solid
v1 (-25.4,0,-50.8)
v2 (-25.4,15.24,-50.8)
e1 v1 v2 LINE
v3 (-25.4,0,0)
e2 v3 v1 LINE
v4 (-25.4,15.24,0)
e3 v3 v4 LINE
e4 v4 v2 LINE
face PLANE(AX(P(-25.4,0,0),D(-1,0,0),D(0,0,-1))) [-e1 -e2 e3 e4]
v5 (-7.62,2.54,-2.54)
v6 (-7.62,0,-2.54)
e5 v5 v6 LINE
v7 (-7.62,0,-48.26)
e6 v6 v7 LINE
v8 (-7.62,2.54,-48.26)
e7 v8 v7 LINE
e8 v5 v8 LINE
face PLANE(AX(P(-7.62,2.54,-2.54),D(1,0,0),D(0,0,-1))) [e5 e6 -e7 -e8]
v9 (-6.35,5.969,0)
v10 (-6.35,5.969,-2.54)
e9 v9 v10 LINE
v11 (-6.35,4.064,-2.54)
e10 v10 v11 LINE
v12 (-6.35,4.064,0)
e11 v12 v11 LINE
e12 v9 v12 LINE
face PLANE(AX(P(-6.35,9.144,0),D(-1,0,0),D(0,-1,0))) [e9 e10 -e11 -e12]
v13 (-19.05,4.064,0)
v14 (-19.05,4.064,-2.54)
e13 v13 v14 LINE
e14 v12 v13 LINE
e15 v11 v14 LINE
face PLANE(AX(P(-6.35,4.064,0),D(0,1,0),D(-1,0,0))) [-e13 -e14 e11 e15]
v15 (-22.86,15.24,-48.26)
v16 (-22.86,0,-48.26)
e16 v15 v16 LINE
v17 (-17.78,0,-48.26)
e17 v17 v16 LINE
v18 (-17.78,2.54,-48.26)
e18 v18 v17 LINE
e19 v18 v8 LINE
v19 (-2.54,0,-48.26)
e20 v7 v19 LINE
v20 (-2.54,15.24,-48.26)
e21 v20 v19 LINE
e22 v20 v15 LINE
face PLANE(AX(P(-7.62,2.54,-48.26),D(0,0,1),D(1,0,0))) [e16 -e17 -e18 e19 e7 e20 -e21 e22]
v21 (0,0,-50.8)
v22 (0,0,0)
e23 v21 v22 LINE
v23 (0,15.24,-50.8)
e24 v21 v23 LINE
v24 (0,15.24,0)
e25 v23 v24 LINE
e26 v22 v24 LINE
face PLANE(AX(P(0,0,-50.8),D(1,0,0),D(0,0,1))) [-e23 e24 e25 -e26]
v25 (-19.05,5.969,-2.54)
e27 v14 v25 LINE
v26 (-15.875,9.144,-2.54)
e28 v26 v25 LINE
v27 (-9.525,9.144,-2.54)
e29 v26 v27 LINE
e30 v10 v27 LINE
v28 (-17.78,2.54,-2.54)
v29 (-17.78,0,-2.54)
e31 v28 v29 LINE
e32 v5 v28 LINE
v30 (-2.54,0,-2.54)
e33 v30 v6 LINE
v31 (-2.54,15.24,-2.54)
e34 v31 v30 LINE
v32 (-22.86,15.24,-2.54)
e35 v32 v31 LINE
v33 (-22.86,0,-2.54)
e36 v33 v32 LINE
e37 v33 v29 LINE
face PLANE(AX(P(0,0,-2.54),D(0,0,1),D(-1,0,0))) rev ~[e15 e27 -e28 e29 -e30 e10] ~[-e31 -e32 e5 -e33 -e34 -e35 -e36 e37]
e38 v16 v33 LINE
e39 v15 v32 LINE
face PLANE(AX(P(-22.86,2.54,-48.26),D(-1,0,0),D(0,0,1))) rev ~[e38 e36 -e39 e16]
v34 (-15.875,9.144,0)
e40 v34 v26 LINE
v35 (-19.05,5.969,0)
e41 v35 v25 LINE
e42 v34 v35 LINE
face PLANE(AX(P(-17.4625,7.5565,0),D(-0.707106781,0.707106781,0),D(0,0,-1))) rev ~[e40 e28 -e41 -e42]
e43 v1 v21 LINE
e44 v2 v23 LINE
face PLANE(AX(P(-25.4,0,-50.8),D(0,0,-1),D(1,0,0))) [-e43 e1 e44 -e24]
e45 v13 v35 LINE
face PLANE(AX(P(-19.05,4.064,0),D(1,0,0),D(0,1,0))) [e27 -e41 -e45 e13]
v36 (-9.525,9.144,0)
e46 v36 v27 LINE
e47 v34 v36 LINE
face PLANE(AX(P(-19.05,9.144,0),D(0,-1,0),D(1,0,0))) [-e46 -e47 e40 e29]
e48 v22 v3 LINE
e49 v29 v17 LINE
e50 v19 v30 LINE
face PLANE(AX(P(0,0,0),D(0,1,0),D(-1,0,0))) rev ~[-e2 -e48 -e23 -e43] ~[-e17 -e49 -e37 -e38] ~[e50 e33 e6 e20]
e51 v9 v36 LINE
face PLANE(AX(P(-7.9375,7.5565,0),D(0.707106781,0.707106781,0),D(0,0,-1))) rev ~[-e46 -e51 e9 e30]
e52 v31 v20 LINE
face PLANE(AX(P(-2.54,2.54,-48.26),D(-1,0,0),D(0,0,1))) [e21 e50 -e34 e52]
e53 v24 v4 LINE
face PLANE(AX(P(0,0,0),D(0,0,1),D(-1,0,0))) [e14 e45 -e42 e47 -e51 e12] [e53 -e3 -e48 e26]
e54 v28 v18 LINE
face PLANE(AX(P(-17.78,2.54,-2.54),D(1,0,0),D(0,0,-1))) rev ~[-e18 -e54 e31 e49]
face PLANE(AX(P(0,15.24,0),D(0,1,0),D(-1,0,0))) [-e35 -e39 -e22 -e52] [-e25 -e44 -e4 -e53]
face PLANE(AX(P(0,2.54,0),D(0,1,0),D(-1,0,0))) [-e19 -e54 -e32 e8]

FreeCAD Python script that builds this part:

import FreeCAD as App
import Part
import Sketcher

V = App.Vector
Q = App.Units.Quantity


def edges_at(feature, points):
    """Names of the edges that pass closest to the given points."""
    edges = feature.Shape.Edges
    near = lambda p: min(range(len(edges)), key=lambda i: edges[i].distToShape(Part.Vertex(*p))[0])
    return sorted({f"Edge{near(p) + 1}" for p in points})


def faces_at(feature, points):
    """Names of the faces that lie closest to the given points."""
    faces = feature.Shape.Faces
    near = lambda p: min(range(len(faces)), key=lambda i: faces[i].distToShape(Part.Vertex(*p))[0])
    return sorted({f"Face{near(p) + 1}" for p in points})

doc = App.newDocument("Part")
body = doc.addObject("PartDesign::Body", "Body")

# Sketch on XZ plane
sketch1 = doc.addObject("Sketcher::SketchObject", "Sketch")
body.addObject(sketch1)
sketch1.AttachmentSupport = (doc.XZ_Plane, [""])
sketch1.MapMode = "FlatFace"
sketch1.addGeometry(Part.LineSegment(V(-25.4, 0, 0), V(0, 0, 0)), False)
sketch1.addGeometry(Part.LineSegment(V(0, 0, 0), V(0, -50.8, 0)), False)
sketch1.addGeometry(Part.LineSegment(V(0, -50.8, 0), V(-25.4, -50.8, 0)), False)
sketch1.addGeometry(Part.LineSegment(V(-25.4, -50.8, 0), V(-25.4, 0, 0)), False)
sketch1.addConstraint(Sketcher.Constraint("Coincident", 0, 2, 1, 1))
sketch1.addConstraint(Sketcher.Constraint("Coincident", 1, 2, 2, 1))
sketch1.addConstraint(Sketcher.Constraint("Coincident", 2, 2, 3, 1))
sketch1.addConstraint(Sketcher.Constraint("Coincident", 3, 2, 0, 1))
sketch1.addConstraint(Sketcher.Constraint("Horizontal", 0))
sketch1.addConstraint(Sketcher.Constraint("Vertical", 1))
sketch1.addConstraint(Sketcher.Constraint("Horizontal", 2))
sketch1.addConstraint(Sketcher.Constraint("Vertical", 3))
sketch1.addConstraint(Sketcher.Constraint("Coincident", 0, 2, -1, 1))
sketch1.addConstraint(Sketcher.Constraint("DistanceX", 0, 1, 0, 2, Q("1 in")))
sketch1.addConstraint(Sketcher.Constraint("DistanceY", 1, 2, 1, 1, Q("2 in")))
pad1 = doc.addObject("PartDesign::Pad", "Pad")
body.addObject(pad1)
pad1.Profile = sketch1
pad1.Length = Q("0.6 in")
pad1.Reversed = True
doc.recompute()

thickness = doc.addObject("PartDesign::Thickness", "Thickness")
body.addObject(thickness)
thickness.Base = (pad1, faces_at(pad1, [(-8.467, 15.24, -33.867)]))
thickness.Value = Q("0.1 in")
thickness.Reversed = True
thickness.Join = "Intersection"

# Sketch on XY plane
sketch2 = doc.addObject("Sketcher::SketchObject", "Sketch001")
body.addObject(sketch2)
sketch2.AttachmentSupport = (doc.XY_Plane, [""])
sketch2.MapMode = "FlatFace"
sketch2.addGeometry(Part.LineSegment(V(-19.05, 4.064, 0), V(-6.35, 4.064, 0)), False)
sketch2.addGeometry(Part.LineSegment(V(-6.35, 4.064, 0), V(-6.35, 9.144, 0)), False)
sketch2.addGeometry(Part.LineSegment(V(-6.35, 9.144, 0), V(-19.05, 9.144, 0)), False)
sketch2.addGeometry(Part.LineSegment(V(-19.05, 9.144, 0), V(-19.05, 4.064, 0)), False)
sketch2.addConstraint(Sketcher.Constraint("Coincident", 0, 2, 1, 1))
sketch2.addConstraint(Sketcher.Constraint("Coincident", 1, 2, 2, 1))
sketch2.addConstraint(Sketcher.Constraint("Coincident", 2, 2, 3, 1))
sketch2.addConstraint(Sketcher.Constraint("Coincident", 3, 2, 0, 1))
sketch2.addConstraint(Sketcher.Constraint("Horizontal", 0))
sketch2.addConstraint(Sketcher.Constraint("Vertical", 1))
sketch2.addConstraint(Sketcher.Constraint("Horizontal", 2))
sketch2.addConstraint(Sketcher.Constraint("Vertical", 3))
sketch2.addConstraint(Sketcher.Constraint("DistanceX", 0, 1, 0, 2, Q("0.5 in")))
sketch2.addConstraint(Sketcher.Constraint("DistanceY", 1, 1, 1, 2, Q("0.2 in")))
sketch2.addConstraint(Sketcher.Constraint("DistanceX", 0, 2, -1, 1, Q("0.25 in")))
sketch2.addConstraint(Sketcher.Constraint("DistanceY", -1, 1, 0, 2, Q("0.16 in")))
pocket1 = doc.addObject("PartDesign::Pocket", "Pocket")
body.addObject(pocket1)
pocket1.Profile = sketch2
pocket1.Length = Q("0.1 in")
doc.recompute()

chamfer = doc.addObject("PartDesign::Chamfer", "Chamfer")
body.addObject(chamfer)
chamfer.Base = (pocket1, edges_at(pocket1, [(-19.05, 9.144, -1.27), (-6.35, 9.144, -1.27)]))
chamfer.Size = Q("0.125 in")

# Sketch on XZ plane
sketch3 = doc.addObject("Sketcher::SketchObject", "Sketch002")
body.addObject(sketch3)
sketch3.AttachmentSupport = (doc.XZ_Plane, [""])
sketch3.MapMode = "FlatFace"
sketch3.AttachmentOffset = App.Placement(V(0, 0, -0.1 * 25.4), App.Rotation())
sketch3.addGeometry(Part.LineSegment(V(-22.86, -48.26, 0), V(-22.86, -2.54, 0)), False)
sketch3.addGeometry(Part.LineSegment(V(-22.86, -2.54, 0), V(-17.78, -2.54, 0)), False)
sketch3.addGeometry(Part.LineSegment(V(-17.78, -2.54, 0), V(-17.78, -48.26, 0)), False)
sketch3.addGeometry(Part.LineSegment(V(-17.78, -48.26, 0), V(-22.86, -48.26, 0)), False)
sketch3.addGeometry(Part.LineSegment(V(-2.54, -48.26, 0), V(-7.62, -48.26, 0)), False)
sketch3.addGeometry(Part.LineSegment(V(-7.62, -48.26, 0), V(-7.62, -2.54, 0)), False)
sketch3.addGeometry(Part.LineSegment(V(-7.62, -2.54, 0), V(-2.54, -2.54, 0)), False)
sketch3.addGeometry(Part.LineSegment(V(-2.54, -2.54, 0), V(-2.54, -48.26, 0)), False)
sketch3.addConstraint(Sketcher.Constraint("Coincident", 0, 2, 1, 1))
sketch3.addConstraint(Sketcher.Constraint("Coincident", 1, 2, 2, 1))
sketch3.addConstraint(Sketcher.Constraint("Coincident", 2, 2, 3, 1))
sketch3.addConstraint(Sketcher.Constraint("Coincident", 3, 2, 0, 1))
sketch3.addConstraint(Sketcher.Constraint("Coincident", 4, 2, 5, 1))
sketch3.addConstraint(Sketcher.Constraint("Coincident", 5, 2, 6, 1))
sketch3.addConstraint(Sketcher.Constraint("Coincident", 6, 2, 7, 1))
sketch3.addConstraint(Sketcher.Constraint("Coincident", 7, 2, 4, 1))
sketch3.addConstraint(Sketcher.Constraint("Vertical", 0))
sketch3.addConstraint(Sketcher.Constraint("Horizontal", 1))
sketch3.addConstraint(Sketcher.Constraint("Vertical", 2))
sketch3.addConstraint(Sketcher.Constraint("Horizontal", 3))
sketch3.addConstraint(Sketcher.Constraint("Horizontal", 4))
sketch3.addConstraint(Sketcher.Constraint("Vertical", 5))
sketch3.addConstraint(Sketcher.Constraint("Horizontal", 6))
sketch3.addConstraint(Sketcher.Constraint("Vertical", 7))
sketch3.addConstraint(Sketcher.Constraint("Horizontal", 3, 2, 4, 2))
sketch3.addConstraint(Sketcher.Constraint("Horizontal", 1, 2, 5, 2))
sketch3.addConstraint(Sketcher.Constraint("Equal", 3, 4))
sketch3.addConstraint(Sketcher.Constraint("DistanceX", 1, 1, 1, 2, Q("0.2 in")))
sketch3.addConstraint(Sketcher.Constraint("DistanceY", 0, 1, 0, 2, Q("1.8 in")))
sketch3.addConstraint(Sketcher.Constraint("DistanceX", 0, 2, -1, 1, Q("0.9 in")))
sketch3.addConstraint(Sketcher.Constraint("DistanceY", 0, 2, -1, 1, Q("0.1 in")))
sketch3.addConstraint(Sketcher.Constraint("DistanceX", 4, 2, -1, 1, Q("0.3 in")))
pocket2 = doc.addObject("PartDesign::Pocket", "Pocket001")
body.addObject(pocket2)
pocket2.Profile = sketch3
pocket2.Length = Q("0.1 in")
pocket2.Reversed = True

doc.recompute()
